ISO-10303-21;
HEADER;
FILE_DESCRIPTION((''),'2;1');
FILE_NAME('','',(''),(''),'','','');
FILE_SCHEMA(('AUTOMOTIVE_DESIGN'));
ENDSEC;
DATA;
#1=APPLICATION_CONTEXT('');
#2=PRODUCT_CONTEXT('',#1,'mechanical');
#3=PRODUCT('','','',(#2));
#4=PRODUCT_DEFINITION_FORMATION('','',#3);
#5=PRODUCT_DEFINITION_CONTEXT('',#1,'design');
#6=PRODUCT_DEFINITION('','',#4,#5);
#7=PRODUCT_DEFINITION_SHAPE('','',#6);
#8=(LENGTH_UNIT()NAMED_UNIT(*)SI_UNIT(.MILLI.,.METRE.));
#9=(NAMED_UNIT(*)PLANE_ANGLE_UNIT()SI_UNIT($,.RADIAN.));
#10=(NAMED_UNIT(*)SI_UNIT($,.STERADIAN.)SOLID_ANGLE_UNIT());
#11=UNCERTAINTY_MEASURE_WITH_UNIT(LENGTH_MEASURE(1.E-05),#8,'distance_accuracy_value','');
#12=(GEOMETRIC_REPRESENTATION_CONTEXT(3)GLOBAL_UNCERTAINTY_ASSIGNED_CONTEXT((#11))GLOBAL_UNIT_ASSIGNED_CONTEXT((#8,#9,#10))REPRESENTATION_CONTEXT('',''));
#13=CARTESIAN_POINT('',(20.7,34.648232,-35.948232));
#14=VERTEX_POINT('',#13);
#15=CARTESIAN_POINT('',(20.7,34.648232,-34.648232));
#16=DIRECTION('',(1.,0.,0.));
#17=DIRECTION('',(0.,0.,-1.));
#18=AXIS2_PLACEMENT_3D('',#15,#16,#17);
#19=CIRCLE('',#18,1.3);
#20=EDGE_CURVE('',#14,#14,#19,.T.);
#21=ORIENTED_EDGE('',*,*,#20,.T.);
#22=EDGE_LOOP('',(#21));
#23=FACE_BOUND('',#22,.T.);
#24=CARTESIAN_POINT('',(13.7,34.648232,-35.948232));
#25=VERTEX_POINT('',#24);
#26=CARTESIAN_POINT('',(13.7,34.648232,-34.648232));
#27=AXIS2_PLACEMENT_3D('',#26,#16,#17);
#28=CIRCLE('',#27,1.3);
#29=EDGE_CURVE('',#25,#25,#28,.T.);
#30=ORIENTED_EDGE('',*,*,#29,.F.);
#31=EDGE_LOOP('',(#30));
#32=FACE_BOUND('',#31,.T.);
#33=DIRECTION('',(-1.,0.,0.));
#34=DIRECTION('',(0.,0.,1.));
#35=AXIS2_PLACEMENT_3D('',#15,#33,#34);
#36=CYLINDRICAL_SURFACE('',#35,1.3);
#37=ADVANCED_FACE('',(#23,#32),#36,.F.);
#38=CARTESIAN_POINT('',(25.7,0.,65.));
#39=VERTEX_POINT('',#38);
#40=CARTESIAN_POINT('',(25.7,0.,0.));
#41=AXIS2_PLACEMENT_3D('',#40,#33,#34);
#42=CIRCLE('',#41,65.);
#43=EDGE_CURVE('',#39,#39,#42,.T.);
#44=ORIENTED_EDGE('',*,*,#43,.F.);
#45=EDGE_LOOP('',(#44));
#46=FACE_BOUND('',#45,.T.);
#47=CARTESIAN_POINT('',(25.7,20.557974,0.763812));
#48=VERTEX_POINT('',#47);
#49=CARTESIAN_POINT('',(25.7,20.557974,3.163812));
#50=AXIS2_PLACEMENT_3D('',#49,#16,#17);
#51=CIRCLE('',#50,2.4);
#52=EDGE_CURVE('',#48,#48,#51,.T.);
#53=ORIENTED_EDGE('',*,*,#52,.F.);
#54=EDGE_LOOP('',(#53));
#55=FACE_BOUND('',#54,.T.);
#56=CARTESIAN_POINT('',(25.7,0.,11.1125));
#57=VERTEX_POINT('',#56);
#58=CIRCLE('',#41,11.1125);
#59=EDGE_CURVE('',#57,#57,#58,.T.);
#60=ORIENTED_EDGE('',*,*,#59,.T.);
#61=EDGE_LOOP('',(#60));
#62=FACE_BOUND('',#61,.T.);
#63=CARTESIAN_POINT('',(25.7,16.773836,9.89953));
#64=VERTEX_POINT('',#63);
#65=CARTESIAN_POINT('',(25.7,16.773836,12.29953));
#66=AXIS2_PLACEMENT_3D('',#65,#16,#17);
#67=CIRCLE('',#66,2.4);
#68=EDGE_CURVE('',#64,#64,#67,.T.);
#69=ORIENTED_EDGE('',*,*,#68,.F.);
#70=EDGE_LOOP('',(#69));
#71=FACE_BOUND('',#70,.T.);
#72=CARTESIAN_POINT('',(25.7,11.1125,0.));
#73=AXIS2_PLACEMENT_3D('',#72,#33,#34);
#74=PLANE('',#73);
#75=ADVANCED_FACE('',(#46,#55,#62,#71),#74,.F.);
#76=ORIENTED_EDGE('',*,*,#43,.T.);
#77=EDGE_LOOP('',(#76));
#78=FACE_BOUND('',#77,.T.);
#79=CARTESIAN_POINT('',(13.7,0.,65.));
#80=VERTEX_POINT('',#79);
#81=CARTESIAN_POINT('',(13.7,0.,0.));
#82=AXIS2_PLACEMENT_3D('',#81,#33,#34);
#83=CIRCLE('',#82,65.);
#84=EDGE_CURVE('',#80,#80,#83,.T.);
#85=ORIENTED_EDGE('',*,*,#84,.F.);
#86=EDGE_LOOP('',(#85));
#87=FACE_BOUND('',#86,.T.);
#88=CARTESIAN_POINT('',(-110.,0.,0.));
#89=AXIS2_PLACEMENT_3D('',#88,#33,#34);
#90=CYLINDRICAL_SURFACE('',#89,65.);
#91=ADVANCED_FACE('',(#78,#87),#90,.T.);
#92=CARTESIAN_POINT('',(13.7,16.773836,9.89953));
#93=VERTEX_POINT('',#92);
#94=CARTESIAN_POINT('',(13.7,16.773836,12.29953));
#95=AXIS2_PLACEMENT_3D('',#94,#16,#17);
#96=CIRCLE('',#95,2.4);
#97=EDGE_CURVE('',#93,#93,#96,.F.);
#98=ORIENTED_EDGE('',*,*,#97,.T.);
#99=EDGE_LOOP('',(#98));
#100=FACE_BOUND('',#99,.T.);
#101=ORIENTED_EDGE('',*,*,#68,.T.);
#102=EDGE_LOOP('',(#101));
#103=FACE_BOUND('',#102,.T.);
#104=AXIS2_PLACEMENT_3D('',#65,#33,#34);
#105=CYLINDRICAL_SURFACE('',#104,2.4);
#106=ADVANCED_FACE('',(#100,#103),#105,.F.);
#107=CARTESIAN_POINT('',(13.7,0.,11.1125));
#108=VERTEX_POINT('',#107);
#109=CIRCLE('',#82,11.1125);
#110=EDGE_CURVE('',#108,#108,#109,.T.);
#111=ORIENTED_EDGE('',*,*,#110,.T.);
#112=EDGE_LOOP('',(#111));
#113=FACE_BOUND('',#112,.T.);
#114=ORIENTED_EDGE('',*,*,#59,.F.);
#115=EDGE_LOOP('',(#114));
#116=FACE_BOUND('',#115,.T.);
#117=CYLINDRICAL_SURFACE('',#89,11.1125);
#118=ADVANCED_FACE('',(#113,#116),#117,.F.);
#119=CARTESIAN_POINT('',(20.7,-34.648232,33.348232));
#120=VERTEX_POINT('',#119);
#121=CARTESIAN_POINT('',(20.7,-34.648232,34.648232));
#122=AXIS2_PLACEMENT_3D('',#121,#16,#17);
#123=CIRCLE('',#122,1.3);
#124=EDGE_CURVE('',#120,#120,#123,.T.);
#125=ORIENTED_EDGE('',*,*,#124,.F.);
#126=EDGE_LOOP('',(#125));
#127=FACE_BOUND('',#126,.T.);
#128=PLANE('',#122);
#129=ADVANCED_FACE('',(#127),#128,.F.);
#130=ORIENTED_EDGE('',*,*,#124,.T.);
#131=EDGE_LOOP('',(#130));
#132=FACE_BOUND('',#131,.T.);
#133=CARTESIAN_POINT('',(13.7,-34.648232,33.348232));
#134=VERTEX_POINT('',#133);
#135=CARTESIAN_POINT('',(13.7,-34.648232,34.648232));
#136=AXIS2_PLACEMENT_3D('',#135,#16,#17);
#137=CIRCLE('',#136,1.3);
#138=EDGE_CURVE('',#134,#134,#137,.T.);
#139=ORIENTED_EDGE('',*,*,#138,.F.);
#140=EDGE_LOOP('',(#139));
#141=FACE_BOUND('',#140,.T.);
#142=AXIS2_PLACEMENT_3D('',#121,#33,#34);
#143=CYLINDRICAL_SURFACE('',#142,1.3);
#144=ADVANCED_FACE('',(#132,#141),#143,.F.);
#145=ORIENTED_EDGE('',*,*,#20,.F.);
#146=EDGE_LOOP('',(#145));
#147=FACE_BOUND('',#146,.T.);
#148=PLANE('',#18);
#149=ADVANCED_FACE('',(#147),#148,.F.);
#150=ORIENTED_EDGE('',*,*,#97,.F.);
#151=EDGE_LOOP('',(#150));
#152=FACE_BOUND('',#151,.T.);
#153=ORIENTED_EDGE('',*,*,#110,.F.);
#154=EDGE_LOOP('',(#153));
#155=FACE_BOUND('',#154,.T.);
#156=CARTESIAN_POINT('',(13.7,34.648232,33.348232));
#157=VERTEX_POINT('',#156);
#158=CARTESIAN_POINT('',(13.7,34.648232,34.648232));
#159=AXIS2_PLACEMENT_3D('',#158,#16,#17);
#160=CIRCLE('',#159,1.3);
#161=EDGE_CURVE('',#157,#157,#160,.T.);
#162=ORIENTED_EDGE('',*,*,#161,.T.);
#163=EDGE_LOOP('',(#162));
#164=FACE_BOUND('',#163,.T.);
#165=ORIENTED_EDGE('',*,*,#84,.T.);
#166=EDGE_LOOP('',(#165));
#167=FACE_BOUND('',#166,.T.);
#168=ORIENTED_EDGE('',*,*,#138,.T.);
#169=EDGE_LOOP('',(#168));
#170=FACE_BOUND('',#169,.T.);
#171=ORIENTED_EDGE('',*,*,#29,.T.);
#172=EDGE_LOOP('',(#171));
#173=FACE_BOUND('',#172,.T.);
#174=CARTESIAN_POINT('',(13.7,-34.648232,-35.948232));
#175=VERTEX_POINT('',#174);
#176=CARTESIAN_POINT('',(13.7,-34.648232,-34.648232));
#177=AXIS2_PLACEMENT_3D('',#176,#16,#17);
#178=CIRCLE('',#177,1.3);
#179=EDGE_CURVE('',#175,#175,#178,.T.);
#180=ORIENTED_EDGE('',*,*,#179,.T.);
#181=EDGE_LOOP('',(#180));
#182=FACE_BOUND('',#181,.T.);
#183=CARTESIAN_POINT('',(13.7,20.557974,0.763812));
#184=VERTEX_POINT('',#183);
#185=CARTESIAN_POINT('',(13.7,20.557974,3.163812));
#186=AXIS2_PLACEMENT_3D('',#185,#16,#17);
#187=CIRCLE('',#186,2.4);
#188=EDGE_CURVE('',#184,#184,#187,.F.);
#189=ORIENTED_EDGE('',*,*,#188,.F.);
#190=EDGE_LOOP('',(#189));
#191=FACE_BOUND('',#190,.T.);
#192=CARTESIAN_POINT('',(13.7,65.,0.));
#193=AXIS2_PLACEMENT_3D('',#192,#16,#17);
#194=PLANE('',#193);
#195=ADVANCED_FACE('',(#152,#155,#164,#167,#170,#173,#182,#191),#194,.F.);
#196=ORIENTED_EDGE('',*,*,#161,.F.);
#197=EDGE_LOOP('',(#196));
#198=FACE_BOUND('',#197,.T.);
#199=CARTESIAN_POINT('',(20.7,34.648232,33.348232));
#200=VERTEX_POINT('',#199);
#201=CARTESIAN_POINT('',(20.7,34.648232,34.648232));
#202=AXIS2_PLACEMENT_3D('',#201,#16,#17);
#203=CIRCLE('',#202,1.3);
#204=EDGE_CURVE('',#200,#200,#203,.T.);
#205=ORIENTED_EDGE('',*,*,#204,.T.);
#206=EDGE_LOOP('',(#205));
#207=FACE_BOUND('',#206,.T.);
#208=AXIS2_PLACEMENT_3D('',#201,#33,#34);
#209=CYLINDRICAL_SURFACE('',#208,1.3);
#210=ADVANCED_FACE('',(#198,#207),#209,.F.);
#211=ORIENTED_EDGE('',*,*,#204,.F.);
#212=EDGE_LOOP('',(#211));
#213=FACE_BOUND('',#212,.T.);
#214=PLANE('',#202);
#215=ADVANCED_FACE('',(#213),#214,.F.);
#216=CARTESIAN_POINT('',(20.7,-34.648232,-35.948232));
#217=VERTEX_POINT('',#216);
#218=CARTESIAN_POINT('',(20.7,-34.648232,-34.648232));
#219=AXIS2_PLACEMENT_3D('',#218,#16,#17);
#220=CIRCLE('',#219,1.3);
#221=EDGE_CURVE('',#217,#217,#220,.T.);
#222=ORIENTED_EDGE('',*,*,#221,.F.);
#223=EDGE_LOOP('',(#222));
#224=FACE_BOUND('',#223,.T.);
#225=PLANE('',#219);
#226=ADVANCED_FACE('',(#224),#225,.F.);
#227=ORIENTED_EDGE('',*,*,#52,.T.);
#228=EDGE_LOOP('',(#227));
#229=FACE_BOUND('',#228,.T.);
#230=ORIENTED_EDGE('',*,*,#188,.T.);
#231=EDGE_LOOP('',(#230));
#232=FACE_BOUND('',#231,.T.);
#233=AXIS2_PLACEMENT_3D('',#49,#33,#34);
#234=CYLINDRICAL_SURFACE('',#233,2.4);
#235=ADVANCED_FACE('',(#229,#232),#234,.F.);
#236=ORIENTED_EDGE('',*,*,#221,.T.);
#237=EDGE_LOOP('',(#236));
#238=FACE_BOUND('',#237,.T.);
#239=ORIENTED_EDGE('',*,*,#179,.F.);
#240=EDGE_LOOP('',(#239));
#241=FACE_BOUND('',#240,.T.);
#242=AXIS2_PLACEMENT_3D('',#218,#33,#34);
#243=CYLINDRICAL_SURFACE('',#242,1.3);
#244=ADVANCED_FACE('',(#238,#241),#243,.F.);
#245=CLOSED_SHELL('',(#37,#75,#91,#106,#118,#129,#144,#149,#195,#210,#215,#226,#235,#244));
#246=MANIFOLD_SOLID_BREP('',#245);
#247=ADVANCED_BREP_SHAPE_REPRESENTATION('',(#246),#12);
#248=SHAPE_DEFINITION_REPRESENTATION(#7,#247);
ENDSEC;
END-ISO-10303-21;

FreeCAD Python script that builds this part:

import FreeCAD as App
import Part
import Sketcher
from FreeCAD import Vector

doc = App.newDocument("Part")
body = doc.addObject("PartDesign::Body", "Body")

# Sketch on XY plane
sketch1 = body.newObject("Sketcher::SketchObject", "Sketch")
sketch1.AttachmentSupport = (doc.getObject("XY_Plane"), [""])
sketch1.MapMode = "FlatFace"
sketch1.addGeometry([
    Part.LineSegment(Vector(14, 65, 0), Vector(14, 11, 0)),
    Part.LineSegment(Vector(14, 11, 0), Vector(26, 11, 0)),
    Part.LineSegment(Vector(26, 11, 0), Vector(26, 65, 0)),
    Part.LineSegment(Vector(26, 65, 0), Vector(14, 65, 0)),
], False)
sketch1.addConstraint([
    Sketcher.Constraint("Coincident", 0, 2, 1, 1),
    Sketcher.Constraint("Coincident", 1, 2, 2, 1),
    Sketcher.Constraint("Coincident", 2, 2, 3, 1),
    Sketcher.Constraint("Coincident", 3, 2, 0, 1),
    Sketcher.Constraint("Vertical", 0),
    Sketcher.Constraint("Horizontal", 1),
    Sketcher.Constraint("Vertical", 2),
    Sketcher.Constraint("Horizontal", 3),
    Sketcher.Constraint("DistanceX", 1, 1, 1, 2, 12.0),
    Sketcher.Constraint("DistanceY", -1, 1, 2, 2, 65.0),
    Sketcher.Constraint("DistanceX", -1, 1, 0, 2, 13.7),
    Sketcher.Constraint("DistanceY", 0, 2, 0, 1, 53.8875),
])
revolution = body.newObject("PartDesign::Revolution", "Revolution")
revolution.Profile = sketch1
revolution.ReferenceAxis = (sketch1, ["H_Axis"])
revolution.Angle = 360

# Sketch on YZ plane
sketch2 = body.newObject("Sketcher::SketchObject", "Sketch001")
sketch2.AttachmentSupport = (doc.getObject("YZ_Plane"), [""])
sketch2.MapMode = "FlatFace"
sketch2.addGeometry([
    Part.Circle(Vector(20.6, 3.2, 0), Vector(0, 0, 1), 2.4),
    Part.Circle(Vector(16.8, 12.3, 0), Vector(0, 0, 1), 2.4),
], False)
sketch2.addConstraint([
    Sketcher.Constraint("Equal", 0, 1),
    Sketcher.Constraint("Diameter", 0, 4.8),
    Sketcher.Constraint("DistanceY", -1, 1, 1, 3, 12.29953),
    Sketcher.Constraint("DistanceX", 1, 3, 0, 3, 3.784138),
    Sketcher.Constraint("DistanceX", -1, 1, 0, 3, 20.557974),
    Sketcher.Constraint("DistanceY", -1, 1, 0, 3, 3.163812),
])
pocket1 = body.newObject("PartDesign::Pocket", "Pocket")
pocket1.Profile = sketch2
pocket1.Type = "ThroughAll"
pocket1.Midplane = True

# Sketch on YZ plane
sketch3 = body.newObject("Sketcher::SketchObject", "Sketch002")
sketch3.AttachmentSupport = (doc.getObject("YZ_Plane"), [""])
sketch3.MapMode = "FlatFace"
sketch3.AttachmentOffset = App.Placement(Vector(0, 0, 13.7), App.Rotation())
sketch3.addGeometry([
    Part.Circle(Vector(34.6, 34.6, 0), Vector(0, 0, 1), 1.3),
    Part.Circle(Vector(-34.6, 34.6, 0), Vector(0, 0, 1), 1.3),
    Part.Circle(Vector(-34.6, -34.6, 0), Vector(0, 0, 1), 1.3),
    Part.Circle(Vector(34.6, -34.6, 0), Vector(0, 0, 1), 1.3),
], False)
sketch3.addConstraint([
    Sketcher.Constraint("Equal", 0, 1),
    Sketcher.Constraint("Equal", 1, 2),
    Sketcher.Constraint("Equal", 2, 3),
    Sketcher.Constraint("Symmetric", 0, 3, 2, 3, -1, 1),
    Sketcher.Constraint("Symmetric", 1, 3, 3, 3, -1, 1),
    Sketcher.Constraint("Symmetric", 0, 3, 1, 3, -2),
    Sketcher.Constraint("Diameter", 0, 2.6),
    Sketcher.Constraint("DistanceX", -1, 1, 0, 3, 34.648232),
    Sketcher.Constraint("DistanceY", -1, 1, 0, 3, 34.648232),
])
pocket2 = body.newObject("PartDesign::Pocket", "Pocket001")
pocket2.Profile = sketch3
pocket2.Length = 7
pocket2.Reversed = True

doc.recompute()
